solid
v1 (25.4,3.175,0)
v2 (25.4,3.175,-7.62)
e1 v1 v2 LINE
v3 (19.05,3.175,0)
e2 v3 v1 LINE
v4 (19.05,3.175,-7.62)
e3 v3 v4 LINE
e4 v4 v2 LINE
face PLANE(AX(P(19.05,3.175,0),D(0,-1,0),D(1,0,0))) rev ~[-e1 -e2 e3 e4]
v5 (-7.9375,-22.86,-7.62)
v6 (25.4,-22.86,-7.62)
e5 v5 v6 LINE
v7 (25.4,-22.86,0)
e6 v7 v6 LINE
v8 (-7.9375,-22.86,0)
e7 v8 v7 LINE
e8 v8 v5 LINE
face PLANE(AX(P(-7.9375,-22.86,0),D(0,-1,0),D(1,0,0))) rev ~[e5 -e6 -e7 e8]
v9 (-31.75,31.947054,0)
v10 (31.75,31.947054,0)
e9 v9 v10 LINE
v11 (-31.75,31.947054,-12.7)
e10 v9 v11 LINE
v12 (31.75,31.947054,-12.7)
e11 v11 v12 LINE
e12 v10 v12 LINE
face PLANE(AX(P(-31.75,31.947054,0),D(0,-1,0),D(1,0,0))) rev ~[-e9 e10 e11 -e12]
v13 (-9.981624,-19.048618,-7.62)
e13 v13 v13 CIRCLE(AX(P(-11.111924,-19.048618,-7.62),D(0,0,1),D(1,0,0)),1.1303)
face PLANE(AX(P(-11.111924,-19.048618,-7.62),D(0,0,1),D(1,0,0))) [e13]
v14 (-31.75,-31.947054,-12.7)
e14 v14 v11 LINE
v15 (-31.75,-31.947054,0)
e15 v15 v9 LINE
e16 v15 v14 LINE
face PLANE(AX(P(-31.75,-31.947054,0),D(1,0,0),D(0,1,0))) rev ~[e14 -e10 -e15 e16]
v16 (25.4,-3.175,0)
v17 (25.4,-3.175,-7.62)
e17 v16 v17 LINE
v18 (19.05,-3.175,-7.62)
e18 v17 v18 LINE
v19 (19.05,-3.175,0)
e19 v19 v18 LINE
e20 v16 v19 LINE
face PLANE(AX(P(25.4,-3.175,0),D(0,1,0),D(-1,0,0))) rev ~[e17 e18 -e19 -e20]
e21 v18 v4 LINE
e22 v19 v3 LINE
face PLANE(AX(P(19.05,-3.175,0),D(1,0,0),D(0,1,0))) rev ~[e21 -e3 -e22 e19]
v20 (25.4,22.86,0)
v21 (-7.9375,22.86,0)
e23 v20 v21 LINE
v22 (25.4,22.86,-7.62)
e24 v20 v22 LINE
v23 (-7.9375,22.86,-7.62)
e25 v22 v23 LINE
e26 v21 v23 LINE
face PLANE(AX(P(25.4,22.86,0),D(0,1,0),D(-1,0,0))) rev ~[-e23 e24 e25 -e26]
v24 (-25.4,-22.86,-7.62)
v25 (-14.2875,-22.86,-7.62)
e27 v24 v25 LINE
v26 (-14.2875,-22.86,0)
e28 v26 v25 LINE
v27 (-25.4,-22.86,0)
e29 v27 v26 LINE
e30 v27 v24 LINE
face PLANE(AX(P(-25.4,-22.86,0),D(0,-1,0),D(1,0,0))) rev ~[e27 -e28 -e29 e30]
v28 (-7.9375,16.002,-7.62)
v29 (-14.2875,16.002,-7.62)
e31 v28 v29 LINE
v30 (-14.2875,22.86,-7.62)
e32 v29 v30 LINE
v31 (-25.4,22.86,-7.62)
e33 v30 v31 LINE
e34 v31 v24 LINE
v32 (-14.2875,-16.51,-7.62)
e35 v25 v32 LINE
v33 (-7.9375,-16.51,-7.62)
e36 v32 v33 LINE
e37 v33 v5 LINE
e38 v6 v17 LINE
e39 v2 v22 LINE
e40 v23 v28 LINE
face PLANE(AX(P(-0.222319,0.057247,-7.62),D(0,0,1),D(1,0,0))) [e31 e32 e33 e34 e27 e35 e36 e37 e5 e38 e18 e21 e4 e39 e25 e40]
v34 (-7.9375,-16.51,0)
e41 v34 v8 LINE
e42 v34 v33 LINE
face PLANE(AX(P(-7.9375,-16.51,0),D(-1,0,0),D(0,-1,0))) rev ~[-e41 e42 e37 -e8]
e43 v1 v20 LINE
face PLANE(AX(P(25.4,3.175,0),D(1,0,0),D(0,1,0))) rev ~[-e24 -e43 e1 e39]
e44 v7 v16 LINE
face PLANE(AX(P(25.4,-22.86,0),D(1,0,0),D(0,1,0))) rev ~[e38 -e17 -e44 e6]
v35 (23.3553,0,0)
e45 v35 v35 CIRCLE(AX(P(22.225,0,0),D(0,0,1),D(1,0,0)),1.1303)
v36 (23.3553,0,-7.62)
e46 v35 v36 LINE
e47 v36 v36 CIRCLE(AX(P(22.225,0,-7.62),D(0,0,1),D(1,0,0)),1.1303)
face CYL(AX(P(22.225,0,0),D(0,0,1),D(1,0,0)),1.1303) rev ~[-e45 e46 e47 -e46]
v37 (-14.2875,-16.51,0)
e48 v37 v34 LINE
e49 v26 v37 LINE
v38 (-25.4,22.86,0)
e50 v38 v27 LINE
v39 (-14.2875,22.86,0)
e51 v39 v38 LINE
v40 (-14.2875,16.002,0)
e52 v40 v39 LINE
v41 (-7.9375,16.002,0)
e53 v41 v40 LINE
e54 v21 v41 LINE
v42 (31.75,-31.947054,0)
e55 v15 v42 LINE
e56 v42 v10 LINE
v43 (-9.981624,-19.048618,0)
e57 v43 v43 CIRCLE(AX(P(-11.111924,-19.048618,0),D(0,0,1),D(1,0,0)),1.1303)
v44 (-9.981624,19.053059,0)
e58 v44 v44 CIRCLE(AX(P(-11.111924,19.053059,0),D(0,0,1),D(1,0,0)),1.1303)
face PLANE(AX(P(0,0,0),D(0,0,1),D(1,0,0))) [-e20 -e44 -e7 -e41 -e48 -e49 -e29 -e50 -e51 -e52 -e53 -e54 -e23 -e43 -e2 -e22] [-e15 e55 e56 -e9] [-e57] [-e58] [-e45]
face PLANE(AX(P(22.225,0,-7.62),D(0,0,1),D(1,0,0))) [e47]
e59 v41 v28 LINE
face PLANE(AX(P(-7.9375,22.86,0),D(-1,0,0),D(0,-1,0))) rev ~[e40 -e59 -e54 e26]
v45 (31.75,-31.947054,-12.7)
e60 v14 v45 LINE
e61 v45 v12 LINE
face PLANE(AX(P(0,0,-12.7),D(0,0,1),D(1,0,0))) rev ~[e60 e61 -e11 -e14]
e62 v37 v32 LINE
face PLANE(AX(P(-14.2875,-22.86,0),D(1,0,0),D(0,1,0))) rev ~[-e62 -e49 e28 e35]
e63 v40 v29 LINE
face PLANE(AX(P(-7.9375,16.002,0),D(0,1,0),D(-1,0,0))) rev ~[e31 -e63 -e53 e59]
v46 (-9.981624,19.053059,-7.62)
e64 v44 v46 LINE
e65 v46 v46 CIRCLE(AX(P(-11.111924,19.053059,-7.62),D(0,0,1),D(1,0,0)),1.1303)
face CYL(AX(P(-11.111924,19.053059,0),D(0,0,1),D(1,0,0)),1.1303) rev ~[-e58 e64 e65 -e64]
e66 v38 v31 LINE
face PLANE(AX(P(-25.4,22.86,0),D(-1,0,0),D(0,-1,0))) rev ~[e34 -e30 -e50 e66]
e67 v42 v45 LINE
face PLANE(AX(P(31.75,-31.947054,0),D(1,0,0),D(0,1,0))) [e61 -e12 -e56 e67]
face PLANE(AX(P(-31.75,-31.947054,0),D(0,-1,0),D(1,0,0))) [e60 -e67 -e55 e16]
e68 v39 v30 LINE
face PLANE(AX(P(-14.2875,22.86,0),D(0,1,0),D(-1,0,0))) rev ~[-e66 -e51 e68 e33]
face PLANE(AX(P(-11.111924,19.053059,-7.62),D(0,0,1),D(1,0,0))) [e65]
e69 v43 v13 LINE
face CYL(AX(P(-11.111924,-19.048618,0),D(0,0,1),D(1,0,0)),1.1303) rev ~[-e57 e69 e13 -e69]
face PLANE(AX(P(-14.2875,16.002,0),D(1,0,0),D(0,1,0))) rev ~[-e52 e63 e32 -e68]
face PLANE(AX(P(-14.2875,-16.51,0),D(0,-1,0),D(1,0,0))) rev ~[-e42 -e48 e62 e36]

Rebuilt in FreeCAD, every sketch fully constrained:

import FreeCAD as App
import Part
import Sketcher
from FreeCAD import Vector
Q = App.Units.Quantity

doc = App.newDocument("Part")
body = doc.addObject("PartDesign::Body", "Body")

sketch1 = body.newObject("Sketcher::SketchObject", "Sketch")
sketch1.AttachmentSupport = (doc.getObject("XY_Plane"), [""])
sketch1.MapMode = "FlatFace"
sketch1.addGeometry([
    Part.LineSegment(Vector(-32, 32, 0), Vector(-32, -32, 0)),
    Part.LineSegment(Vector(-32, -32, 0), Vector(32, -32, 0)),
    Part.LineSegment(Vector(32, -32, 0), Vector(32, 32, 0)),
    Part.LineSegment(Vector(32, 32, 0), Vector(-32, 32, 0)),
], False)
sketch1.addConstraint([
    Sketcher.Constraint("Coincident", 0, 2, 1, 1),
    Sketcher.Constraint("Coincident", 1, 2, 2, 1),
    Sketcher.Constraint("Coincident", 2, 2, 3, 1),
    Sketcher.Constraint("Coincident", 3, 2, 0, 1),
    Sketcher.Constraint("Vertical", 0),
    Sketcher.Constraint("Horizontal", 1),
    Sketcher.Constraint("Vertical", 2),
    Sketcher.Constraint("Horizontal", 3),
    Sketcher.Constraint("Symmetric", 0, 2, 2, 2, -1, 1),
    Sketcher.Constraint("DistanceX", 1, 1, 1, 2, Q("2.5 in")),
    Sketcher.Constraint("DistanceY", 0, 2, 0, 1, Q("63.894108 mm")),
])
pad1 = body.newObject("PartDesign::Pad", "Pad")
pad1.Profile = sketch1
pad1.Length = Q("0.5 in")
pad1.Reversed = True

sketch2 = body.newObject("Sketcher::SketchObject", "Sketch001")
sketch2.AttachmentSupport = (doc.getObject("XY_Plane"), [""])
sketch2.MapMode = "FlatFace"
sketch2.addGeometry([
    Part.LineSegment(Vector(-14.3, 22.9, 0), Vector(-25.4, 22.9, 0)),
    Part.LineSegment(Vector(-25.4, 22.9, 0), Vector(-25.4, -22.9, 0)),
    Part.LineSegment(Vector(-25.4, -22.9, 0), Vector(-14.3, -22.9, 0)),
    Part.LineSegment(Vector(-14.3, -22.9, 0), Vector(-14.3, -16.5, 0)),
    Part.LineSegment(Vector(-14.3, -16.5, 0), Vector(-7.9, -16.5, 0)),
    Part.LineSegment(Vector(-7.9, -16.5, 0), Vector(-7.9, -22.9, 0)),
    Part.LineSegment(Vector(-7.9, -22.9, 0), Vector(25.4, -22.9, 0)),
    Part.LineSegment(Vector(25.4, -22.9, 0), Vector(25.4, -3.2, 0)),
    Part.LineSegment(Vector(25.4, -3.2, 0), Vector(19.1, -3.2, 0)),
    Part.LineSegment(Vector(19.1, -3.2, 0), Vector(19.1, 3.2, 0)),
    Part.LineSegment(Vector(19.1, 3.2, 0), Vector(25.4, 3.2, 0)),
    Part.LineSegment(Vector(25.4, 3.2, 0), Vector(25.4, 22.9, 0)),
    Part.LineSegment(Vector(25.4, 22.9, 0), Vector(-7.9, 22.9, 0)),
    Part.LineSegment(Vector(-7.9, 22.9, 0), Vector(-7.9, 16, 0)),
    Part.LineSegment(Vector(-7.9, 16, 0), Vector(-14.3, 16, 0)),
    Part.LineSegment(Vector(-14.3, 16, 0), Vector(-14.3, 22.9, 0)),
    Part.Circle(Vector(22.2, 0, 0), Vector(0, 0, 1), 1.1),
    Part.Circle(Vector(-11.1, -19, 0), Vector(0, 0, 1), 1.1),
    Part.Circle(Vector(-11.1, 19.1, 0), Vector(0, 0, 1), 1.1),
], False)
sketch2.addConstraint([
    Sketcher.Constraint("Coincident", 0, 2, 1, 1),
    Sketcher.Constraint("Coincident", 1, 2, 2, 1),
    Sketcher.Constraint("Coincident", 2, 2, 3, 1),
    Sketcher.Constraint("Coincident", 3, 2, 4, 1),
    Sketcher.Constraint("Coincident", 4, 2, 5, 1),
    Sketcher.Constraint("Coincident", 5, 2, 6, 1),
    Sketcher.Constraint("Coincident", 6, 2, 7, 1),
    Sketcher.Constraint("Coincident", 7, 2, 8, 1),
    Sketcher.Constraint("Coincident", 8, 2, 9, 1),
    Sketcher.Constraint("Coincident", 9, 2, 10, 1),
    Sketcher.Constraint("Coincident", 10, 2, 11, 1),
    Sketcher.Constraint("Coincident", 11, 2, 12, 1),
    Sketcher.Constraint("Coincident", 12, 2, 13, 1),
    Sketcher.Constraint("Coincident", 13, 2, 14, 1),
    Sketcher.Constraint("Coincident", 14, 2, 15, 1),
    Sketcher.Constraint("Coincident", 15, 2, 0, 1),
    Sketcher.Constraint("Horizontal", 0),
    Sketcher.Constraint("Vertical", 1),
    Sketcher.Constraint("Horizontal", 2),
    Sketcher.Constraint("Vertical", 3),
    Sketcher.Constraint("Horizontal", 4),
    Sketcher.Constraint("Vertical", 5),
    Sketcher.Constraint("Horizontal", 6),
    Sketcher.Constraint("Vertical", 7),
    Sketcher.Constraint("Horizontal", 8),
    Sketcher.Constraint("Vertical", 9),
    Sketcher.Constraint("Horizontal", 10),
    Sketcher.Constraint("Vertical", 11),
    Sketcher.Constraint("Horizontal", 12),
    Sketcher.Constraint("Vertical", 13),
    Sketcher.Constraint("Horizontal", 14),
    Sketcher.Constraint("Vertical", 15),
    Sketcher.Constraint("Equal", 16, 17),
    Sketcher.Constraint("Equal", 17, 18),
    Sketcher.Constraint("Symmetric", 0, 2, 6, 2, -1, 1),
    Sketcher.Constraint("Symmetric", 1, 2, 11, 2, -1, 1),
    Sketcher.Constraint("Symmetric", 5, 2, 12, 2, -1),
    Sketcher.Constraint("PointOnObject", 16, 3, -1),
    Sketcher.Constraint("Vertical", 17, 3, 18, 3),
    Sketcher.Constraint("Vertical", 3, 2, 14, 2),
    Sketcher.Constraint("Equal", 4, 8),
    Sketcher.Constraint("Equal", 14, 3),
    Sketcher.Constraint("Equal", 5, 9),
    Sketcher.Constraint("Equal", 7, 11),
    Sketcher.Constraint("Diameter", 16, Q("0.089 in")),
    Sketcher.Constraint("DistanceY", 1, 2, 1, 1, Q("1.8 in")),
    Sketcher.Constraint("DistanceX", 0, 2, -1, 1, Q("1 in")),
    Sketcher.Constraint("DistanceX", 4, 1, 4, 2, Q("0.25 in")),
    Sketcher.Constraint("DistanceY", 13, 2, 13, 1, Q("0.27 in")),
    Sketcher.Constraint("DistanceX", 0, 2, 0, 1, Q("0.4375 in")),
    Sketcher.Constraint("DistanceX", -1, 1, 16, 3, Q("0.875 in")),
    Sketcher.Constraint("DistanceY", 17, 3, -1, 1, Q("19.048618 mm")),
    Sketcher.Constraint("DistanceY", -1, 1, 18, 3, Q("19.053059 mm")),
    Sketcher.Constraint("DistanceX", 17, 3, -1, 1, Q("11.111924 mm")),
])
pocket1 = body.newObject("PartDesign::Pocket", "Pocket")
pocket1.Profile = sketch2
pocket1.Length = Q("0.3 in")

doc.recompute()
